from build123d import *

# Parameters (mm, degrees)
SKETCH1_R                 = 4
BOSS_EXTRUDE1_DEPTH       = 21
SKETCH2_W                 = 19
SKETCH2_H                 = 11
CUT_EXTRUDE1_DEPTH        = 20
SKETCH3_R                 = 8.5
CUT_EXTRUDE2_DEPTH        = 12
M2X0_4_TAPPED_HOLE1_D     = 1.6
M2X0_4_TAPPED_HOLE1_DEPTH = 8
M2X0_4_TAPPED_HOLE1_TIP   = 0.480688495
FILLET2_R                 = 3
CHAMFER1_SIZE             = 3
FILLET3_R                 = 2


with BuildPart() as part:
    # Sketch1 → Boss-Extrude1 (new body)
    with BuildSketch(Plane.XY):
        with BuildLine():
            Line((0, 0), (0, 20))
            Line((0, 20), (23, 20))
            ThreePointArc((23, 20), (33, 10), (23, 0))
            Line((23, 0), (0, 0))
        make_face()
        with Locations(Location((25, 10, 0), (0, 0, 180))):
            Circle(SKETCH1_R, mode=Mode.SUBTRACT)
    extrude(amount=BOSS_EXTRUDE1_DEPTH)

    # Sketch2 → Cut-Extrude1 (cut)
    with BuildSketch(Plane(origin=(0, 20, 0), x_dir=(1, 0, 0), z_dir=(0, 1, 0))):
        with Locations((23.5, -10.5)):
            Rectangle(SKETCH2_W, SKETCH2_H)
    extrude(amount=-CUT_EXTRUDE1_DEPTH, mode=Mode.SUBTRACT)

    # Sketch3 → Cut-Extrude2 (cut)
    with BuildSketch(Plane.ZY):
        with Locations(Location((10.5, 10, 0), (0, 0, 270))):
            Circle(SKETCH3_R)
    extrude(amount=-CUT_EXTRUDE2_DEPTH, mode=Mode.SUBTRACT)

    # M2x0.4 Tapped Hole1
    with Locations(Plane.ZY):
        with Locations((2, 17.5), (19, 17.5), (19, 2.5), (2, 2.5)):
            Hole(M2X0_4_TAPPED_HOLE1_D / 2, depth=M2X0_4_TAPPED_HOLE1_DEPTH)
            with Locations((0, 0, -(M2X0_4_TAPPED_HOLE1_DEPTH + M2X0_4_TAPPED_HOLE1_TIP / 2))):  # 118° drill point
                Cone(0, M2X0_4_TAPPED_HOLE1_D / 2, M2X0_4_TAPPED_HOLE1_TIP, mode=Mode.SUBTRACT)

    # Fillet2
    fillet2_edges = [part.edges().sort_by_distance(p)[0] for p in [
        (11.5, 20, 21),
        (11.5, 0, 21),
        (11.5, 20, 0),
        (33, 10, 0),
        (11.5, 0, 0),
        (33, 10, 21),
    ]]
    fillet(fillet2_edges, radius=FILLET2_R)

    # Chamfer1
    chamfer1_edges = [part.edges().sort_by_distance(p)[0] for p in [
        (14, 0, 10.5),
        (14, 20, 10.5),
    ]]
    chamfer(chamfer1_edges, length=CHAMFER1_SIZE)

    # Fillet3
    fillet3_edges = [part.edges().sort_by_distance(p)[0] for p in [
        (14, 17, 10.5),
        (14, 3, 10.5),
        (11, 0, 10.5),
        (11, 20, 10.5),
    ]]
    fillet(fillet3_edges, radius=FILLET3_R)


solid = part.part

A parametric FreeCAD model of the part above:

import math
import FreeCAD as App
import Part
import Sketcher
from FreeCAD import Vector


def edges_at(feature, points):
    """Names of the edges that pass closest to the given points."""
    edges = feature.Shape.Edges
    near = lambda p: min(range(len(edges)), key=lambda i: edges[i].distToShape(Part.Vertex(*p))[0])
    return sorted({f"Edge{near(p) + 1}" for p in points})


def add_polygon(sketch, points):
    """Adds a closed chain of lines whose ends are joined by coincident constraints."""
    first, n = sketch.GeometryCount, len(points)
    for a, b in zip(points, points[1:] + points[:1]):
        sketch.addGeometry(Part.LineSegment(App.Vector(*a, 0), App.Vector(*b, 0)), False)
    for i in range(n):
        sketch.addConstraint(Sketcher.Constraint("Coincident", first + i, 2, first + (i + 1) % n, 1))

doc = App.newDocument("Part")
params = doc.addObject("Spreadsheet::Sheet", "Params")
for row, (alias, value) in enumerate([
    ("sketch1_diameter", "8 mm"),
    ("sketch1_radius", "10 mm"),
    ("sketch1_width", "23 mm"),
    ("pad1_length", "21 mm"),
    ("sketch2_width", "19 mm"),
    ("sketch2_height", "11 mm"),
    ("pocket1_length", "20 mm"),
    ("sketch3_diameter", "17 mm"),
    ("pocket2_length", "12 mm"),
    ("sketch4_diameter", "1.6 mm"),
    ("hole_diameter", "1.6 mm"),
    ("hole_depth", "8 mm"),
    ("fillet_radius", "3 mm"),
    ("chamfer_size", "3 mm"),
    ("fillet2_radius", "2 mm"),
], start=1):
    params.set(f"A{row}", alias)
    params.set(f"B{row}", "=" + value)
    params.setAlias(f"B{row}", alias)

body = doc.addObject("PartDesign::Body", "Body")

sketch1 = body.newObject("Sketcher::SketchObject", "Sketch")
sketch1.AttachmentSupport = (doc.getObject("XY_Plane"), [""])
sketch1.MapMode = "FlatFace"
sketch1.addGeometry([
    Part.LineSegment(Vector(0, 20, 0), Vector(0, 0, 0)),
    Part.LineSegment(Vector(0, 0, 0), Vector(23, 0, 0)),
    Part.ArcOfCircle(Part.Circle(Vector(23, 10, 0), Vector(0, 0, 1), 10), math.radians(-90), math.radians(90)),
    Part.LineSegment(Vector(23, 20, 0), Vector(0, 20, 0)),
    Part.Circle(Vector(25, 10, 0), Vector(0, 0, 1), 4),
], False)
sketch1.addConstraint([
    Sketcher.Constraint("Coincident", 0, 2, 1, 1),
    Sketcher.Constraint("Tangent", 1, 2, 2, 1),
    Sketcher.Constraint("Tangent", 2, 2, 3, 1),
    Sketcher.Constraint("Coincident", 3, 2, 0, 1),
    Sketcher.Constraint("Vertical", 0),
    Sketcher.Constraint("Horizontal", 1),
    Sketcher.Constraint("Horizontal", 3),
    Sketcher.Constraint("Coincident", 0, 2, -1, 1),
    Sketcher.Constraint("Horizontal", 2, 3, 4, 3),
    Sketcher.Constraint("Diameter", 4, 8.0),
    Sketcher.Constraint("Radius", 2, 10.0),
    Sketcher.Constraint("DistanceX", 1, 1, 1, 2, 23.0),
    Sketcher.Constraint("DistanceX", -1, 1, 4, 3, 25.0),
])
sketch1.setExpression("Constraints[9]", "Params.sketch1_diameter")
sketch1.setExpression("Constraints[10]", "Params.sketch1_radius")
sketch1.setExpression("Constraints[11]", "Params.sketch1_width")
pad1 = body.newObject("PartDesign::Pad", "Pad")
pad1.Profile = sketch1
pad1.setExpression("Length", "Params.pad1_length")

sketch2 = body.newObject("Sketcher::SketchObject", "Sketch001")
sketch2.AttachmentSupport = (doc.getObject("XZ_Plane"), [""])
sketch2.MapMode = "FlatFace"
sketch2.AttachmentOffset = App.Placement(Vector(0, 0, -20), App.Rotation())
add_polygon(sketch2, [(14, 5), (14, 16), (33, 16), (33, 5)])
sketch2.addConstraint([
    Sketcher.Constraint("Vertical", 0),
    Sketcher.Constraint("Horizontal", 1),
    Sketcher.Constraint("Vertical", 2),
    Sketcher.Constraint("Horizontal", 3),
    Sketcher.Constraint("DistanceX", 1, 1, 1, 2, 19.0),
    Sketcher.Constraint("DistanceY", 0, 1, 0, 2, 11.0),
    Sketcher.Constraint("DistanceX", -1, 1, 0, 2, 14.0),
    Sketcher.Constraint("DistanceY", -1, 1, 0, 2, 16.0),
])
sketch2.setExpression("Constraints[8]", "Params.sketch2_width")
sketch2.setExpression("Constraints[9]", "Params.sketch2_height")
pocket1 = body.newObject("PartDesign::Pocket", "Pocket")
pocket1.Profile = sketch2
pocket1.setExpression("Length", "Params.pocket1_length")
pocket1.Reversed = True

sketch3 = body.newObject("Sketcher::SketchObject", "Sketch002")
sketch3.AttachmentSupport = (doc.getObject("YZ_Plane"), [""])
sketch3.MapMode = "FlatFace"
sketch3.addGeometry(Part.Circle(Vector(10, 10, 0), Vector(0, 0, 1), 8), False)
sketch3.addConstraint([
    Sketcher.Constraint("Diameter", 0, 17.0),
    Sketcher.Constraint("DistanceX", -1, 1, 0, 3, 10.0),
    Sketcher.Constraint("DistanceY", -1, 1, 0, 3, 10.5),
])
sketch3.setExpression("Constraints[0]", "Params.sketch3_diameter")
pocket2 = body.newObject("PartDesign::Pocket", "Pocket001")
pocket2.Profile = sketch3
pocket2.setExpression("Length", "Params.pocket2_length")
pocket2.Reversed = True

sketch4 = body.newObject("Sketcher::SketchObject", "Sketch003")
sketch4.AttachmentSupport = (doc.getObject("YZ_Plane"), [""])
sketch4.MapMode = "FlatFace"
sketch4.addGeometry([
    Part.Circle(Vector(17.5, 2, 0), Vector(0, 0, 1), 0.8),
    Part.Circle(Vector(17.5, 19, 0), Vector(0, 0, 1), 0.8),
    Part.Circle(Vector(2.5, 19, 0), Vector(0, 0, 1), 0.8),
    Part.Circle(Vector(2.5, 2, 0), Vector(0, 0, 1), 0.8),
], False)
sketch4.addConstraint([
    Sketcher.Constraint("Equal", 0, 1),
    Sketcher.Constraint("Equal", 1, 2),
    Sketcher.Constraint("Equal", 2, 3),
    Sketcher.Constraint("Horizontal", 1, 3, 2, 3),
    Sketcher.Constraint("Horizontal", 0, 3, 3, 3),
    Sketcher.Constraint("Vertical", 0, 3, 1, 3),
    Sketcher.Constraint("Vertical", 2, 3, 3, 3),
    Sketcher.Constraint("Diameter", 0, 1.6),
    Sketcher.Constraint("DistanceY", -1, 1, 0, 3, 2.0),
    Sketcher.Constraint("DistanceY", -1, 1, 1, 3, 19.0),
    Sketcher.Constraint("DistanceX", 2, 3, 1, 3, 15.0),
    Sketcher.Constraint("DistanceX", -1, 1, 0, 3, 17.5),
])
sketch4.setExpression("Constraints[7]", "Params.sketch4_diameter")
doc.recompute()
hole = body.newObject("PartDesign::Hole", "Hole")
hole.Profile = sketch4
hole.ThreadType = "None"
hole.setExpression("Diameter", "Params.hole_diameter")
hole.DepthType = "Dimension"
hole.setExpression("Depth", "Params.hole_depth")
hole.DrillPoint = "Angled"
hole.DrillPointAngle = 118
hole.Reversed = True
doc.recompute()

fillet = body.newObject("PartDesign::Fillet", "Fillet")
fillet.Base = (hole, edges_at(hole, [
    (11.5, 20, 21),
    (11.5, 0, 21),
    (11.5, 20, 0),
    (33, 10, 0),
    (11.5, 0, 0),
    (33, 10, 21),
]))
fillet.setExpression("Radius", "Params.fillet_radius")
doc.recompute()

chamfer = body.newObject("PartDesign::Chamfer", "Chamfer")
chamfer.Base = (fillet, edges_at(fillet, [(14, 0, 10.5), (14, 20, 10.5)]))
chamfer.setExpression("Size", "Params.chamfer_size")
doc.recompute()

fillet2 = body.newObject("PartDesign::Fillet", "Fillet001")
fillet2.Base = (chamfer, edges_at(chamfer, [
    (14, 17, 10.5),
    (14, 3, 10.5),
    (11, 0, 10.5),
    (11, 20, 10.5),
]))
fillet2.setExpression("Radius", "Params.fillet2_radius")

doc.recompute()
